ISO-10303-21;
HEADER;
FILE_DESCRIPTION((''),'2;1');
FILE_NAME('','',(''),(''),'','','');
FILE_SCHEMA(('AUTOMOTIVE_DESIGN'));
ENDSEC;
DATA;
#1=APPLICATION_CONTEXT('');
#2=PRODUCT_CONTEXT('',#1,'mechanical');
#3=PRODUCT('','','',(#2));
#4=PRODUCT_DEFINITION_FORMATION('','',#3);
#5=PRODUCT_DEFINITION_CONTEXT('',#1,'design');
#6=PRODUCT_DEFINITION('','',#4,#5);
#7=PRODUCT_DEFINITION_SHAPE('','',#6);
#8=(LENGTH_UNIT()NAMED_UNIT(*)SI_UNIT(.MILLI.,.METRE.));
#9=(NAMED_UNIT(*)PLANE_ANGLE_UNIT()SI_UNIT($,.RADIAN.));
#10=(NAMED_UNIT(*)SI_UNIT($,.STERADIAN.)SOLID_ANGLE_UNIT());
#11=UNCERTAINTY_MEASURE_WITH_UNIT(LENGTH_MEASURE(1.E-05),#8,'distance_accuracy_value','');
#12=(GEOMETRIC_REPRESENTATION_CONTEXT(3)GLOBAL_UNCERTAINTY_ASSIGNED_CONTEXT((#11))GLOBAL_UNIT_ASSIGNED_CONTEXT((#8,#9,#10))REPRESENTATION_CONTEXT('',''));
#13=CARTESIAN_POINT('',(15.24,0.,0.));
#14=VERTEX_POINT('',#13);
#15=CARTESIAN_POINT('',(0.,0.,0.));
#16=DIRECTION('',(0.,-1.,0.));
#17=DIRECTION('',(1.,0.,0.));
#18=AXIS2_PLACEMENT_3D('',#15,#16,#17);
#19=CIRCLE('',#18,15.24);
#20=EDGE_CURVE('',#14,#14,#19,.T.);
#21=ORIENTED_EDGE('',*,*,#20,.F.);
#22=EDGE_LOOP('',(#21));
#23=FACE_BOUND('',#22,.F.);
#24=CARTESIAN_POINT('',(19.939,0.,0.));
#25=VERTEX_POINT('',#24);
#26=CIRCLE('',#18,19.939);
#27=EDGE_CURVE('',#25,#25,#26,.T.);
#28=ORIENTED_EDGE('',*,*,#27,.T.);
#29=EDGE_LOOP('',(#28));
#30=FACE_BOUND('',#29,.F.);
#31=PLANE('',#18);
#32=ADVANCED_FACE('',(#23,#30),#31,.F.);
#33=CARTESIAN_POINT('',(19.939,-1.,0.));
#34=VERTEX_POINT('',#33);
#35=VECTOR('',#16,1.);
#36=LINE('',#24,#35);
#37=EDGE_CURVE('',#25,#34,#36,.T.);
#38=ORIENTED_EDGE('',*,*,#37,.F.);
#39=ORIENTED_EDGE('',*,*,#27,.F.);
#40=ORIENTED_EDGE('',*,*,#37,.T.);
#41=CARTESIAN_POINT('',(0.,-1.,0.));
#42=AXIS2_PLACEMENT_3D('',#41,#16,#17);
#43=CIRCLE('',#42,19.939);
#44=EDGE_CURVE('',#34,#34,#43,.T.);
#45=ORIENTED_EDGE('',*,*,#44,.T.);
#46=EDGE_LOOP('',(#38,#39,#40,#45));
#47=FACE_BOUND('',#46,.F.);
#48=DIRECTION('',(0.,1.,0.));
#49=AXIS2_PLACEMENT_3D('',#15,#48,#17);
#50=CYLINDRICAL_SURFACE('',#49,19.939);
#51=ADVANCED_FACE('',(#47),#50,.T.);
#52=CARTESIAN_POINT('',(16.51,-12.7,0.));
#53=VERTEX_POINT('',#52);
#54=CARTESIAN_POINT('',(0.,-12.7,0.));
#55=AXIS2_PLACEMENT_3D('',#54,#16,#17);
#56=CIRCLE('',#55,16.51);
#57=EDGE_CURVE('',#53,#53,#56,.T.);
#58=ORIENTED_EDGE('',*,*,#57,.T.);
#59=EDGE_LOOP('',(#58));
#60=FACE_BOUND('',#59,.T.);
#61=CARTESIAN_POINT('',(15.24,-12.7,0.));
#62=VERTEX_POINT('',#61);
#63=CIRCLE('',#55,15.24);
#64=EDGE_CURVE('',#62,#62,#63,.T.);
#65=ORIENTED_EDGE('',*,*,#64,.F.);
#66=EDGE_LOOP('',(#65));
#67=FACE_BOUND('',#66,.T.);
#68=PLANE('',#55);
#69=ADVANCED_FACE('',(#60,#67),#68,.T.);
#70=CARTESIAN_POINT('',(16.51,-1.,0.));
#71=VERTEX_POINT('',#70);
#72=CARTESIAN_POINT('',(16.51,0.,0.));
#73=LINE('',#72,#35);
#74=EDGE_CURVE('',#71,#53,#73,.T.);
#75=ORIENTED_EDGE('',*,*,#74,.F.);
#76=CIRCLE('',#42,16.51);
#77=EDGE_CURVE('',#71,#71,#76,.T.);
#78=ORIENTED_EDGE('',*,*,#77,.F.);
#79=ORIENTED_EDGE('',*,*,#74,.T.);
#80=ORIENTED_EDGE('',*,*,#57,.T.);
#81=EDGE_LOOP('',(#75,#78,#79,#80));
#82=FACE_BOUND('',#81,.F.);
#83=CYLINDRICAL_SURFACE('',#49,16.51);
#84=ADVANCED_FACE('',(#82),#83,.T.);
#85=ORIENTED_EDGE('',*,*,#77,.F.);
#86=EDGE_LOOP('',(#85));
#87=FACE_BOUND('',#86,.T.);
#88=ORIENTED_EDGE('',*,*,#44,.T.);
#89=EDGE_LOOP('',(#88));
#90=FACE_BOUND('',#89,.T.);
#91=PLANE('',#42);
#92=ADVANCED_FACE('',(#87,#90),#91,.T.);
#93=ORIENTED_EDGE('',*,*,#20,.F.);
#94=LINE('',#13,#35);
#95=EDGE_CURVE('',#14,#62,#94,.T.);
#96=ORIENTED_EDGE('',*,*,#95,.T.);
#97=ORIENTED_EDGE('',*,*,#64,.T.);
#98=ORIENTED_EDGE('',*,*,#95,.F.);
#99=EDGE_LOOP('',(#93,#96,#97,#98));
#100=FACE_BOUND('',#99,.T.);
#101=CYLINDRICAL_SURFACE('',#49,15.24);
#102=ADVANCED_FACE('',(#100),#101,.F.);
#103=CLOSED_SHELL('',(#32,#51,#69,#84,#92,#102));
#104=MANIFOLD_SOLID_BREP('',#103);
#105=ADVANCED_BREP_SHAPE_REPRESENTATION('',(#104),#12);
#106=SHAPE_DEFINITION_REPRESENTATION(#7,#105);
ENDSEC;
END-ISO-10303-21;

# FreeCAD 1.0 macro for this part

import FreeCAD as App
import Part
import Sketcher
from FreeCAD import Vector
Q = App.Units.Quantity

doc = App.newDocument("Part")
params = doc.addObject("Spreadsheet::Sheet", "Params")
for row, (alias, value) in enumerate([
    ("sketch1_diameter", "1.3 in"),
    ("sketch1_diameter2", "1.57 in"),
    ("pad1_length", "1 mm"),
    ("sketch2_diameter", "1.3 in"),
    ("sketch2_diameter2", "1.2 in"),
    ("pad2_length", "0.5 in"),
], start=1):
    params.set(f"A{row}", alias)
    params.set(f"B{row}", "=" + value)
    params.setAlias(f"B{row}", alias)

body = doc.addObject("PartDesign::Body", "Body")

sketch1 = doc.addObject("Sketcher::SketchObject", "Sketch")
body.addObject(sketch1)
sketch1.AttachmentSupport = (doc.XZ_Plane, [""])
sketch1.MapMode = "FlatFace"
sketch1.addGeometry(Part.Circle(Vector(0, 0, 0), Vector(0, 0, 1), 20), False)
sketch1.addGeometry(Part.Circle(Vector(0, 0, 0), Vector(0, 0, 1), 17), False)
sketch1.addConstraint(Sketcher.Constraint("Coincident", 0, 3, -1, 1))
sketch1.addConstraint(Sketcher.Constraint("Coincident", 1, 3, -1, 1))
sketch1.addConstraint(Sketcher.Constraint("Diameter", 1, Q("1.3 in")))
sketch1.addConstraint(Sketcher.Constraint("Diameter", 0, Q("1.57 in")))
sketch1.setExpression("Constraints[2]", "Params.sketch1_diameter")
sketch1.setExpression("Constraints[3]", "Params.sketch1_diameter2")
pad1 = doc.addObject("PartDesign::Pad", "Pad")
body.addObject(pad1)
pad1.Profile = sketch1
pad1.setExpression("Length", "Params.pad1_length")

sketch2 = doc.addObject("Sketcher::SketchObject", "Sketch001")
body.addObject(sketch2)
sketch2.AttachmentSupport = (doc.XZ_Plane, [""])
sketch2.MapMode = "FlatFace"
sketch2.addGeometry(Part.Circle(Vector(0, 0, 0), Vector(0, 0, 1), 17), False)
sketch2.addGeometry(Part.Circle(Vector(0, 0, 0), Vector(0, 0, 1), 15), False)
sketch2.addConstraint(Sketcher.Constraint("Coincident", 0, 3, -1, 1))
sketch2.addConstraint(Sketcher.Constraint("Coincident", 1, 3, -1, 1))
sketch2.addConstraint(Sketcher.Constraint("Diameter", 0, Q("1.3 in")))
sketch2.addConstraint(Sketcher.Constraint("Diameter", 1, Q("1.2 in")))
sketch2.setExpression("Constraints[2]", "Params.sketch2_diameter")
sketch2.setExpression("Constraints[3]", "Params.sketch2_diameter2")
pad2 = doc.addObject("PartDesign::Pad", "Pad001")
body.addObject(pad2)
pad2.Profile = sketch2
pad2.setExpression("Length", "Params.pad2_length")

doc.recompute()
